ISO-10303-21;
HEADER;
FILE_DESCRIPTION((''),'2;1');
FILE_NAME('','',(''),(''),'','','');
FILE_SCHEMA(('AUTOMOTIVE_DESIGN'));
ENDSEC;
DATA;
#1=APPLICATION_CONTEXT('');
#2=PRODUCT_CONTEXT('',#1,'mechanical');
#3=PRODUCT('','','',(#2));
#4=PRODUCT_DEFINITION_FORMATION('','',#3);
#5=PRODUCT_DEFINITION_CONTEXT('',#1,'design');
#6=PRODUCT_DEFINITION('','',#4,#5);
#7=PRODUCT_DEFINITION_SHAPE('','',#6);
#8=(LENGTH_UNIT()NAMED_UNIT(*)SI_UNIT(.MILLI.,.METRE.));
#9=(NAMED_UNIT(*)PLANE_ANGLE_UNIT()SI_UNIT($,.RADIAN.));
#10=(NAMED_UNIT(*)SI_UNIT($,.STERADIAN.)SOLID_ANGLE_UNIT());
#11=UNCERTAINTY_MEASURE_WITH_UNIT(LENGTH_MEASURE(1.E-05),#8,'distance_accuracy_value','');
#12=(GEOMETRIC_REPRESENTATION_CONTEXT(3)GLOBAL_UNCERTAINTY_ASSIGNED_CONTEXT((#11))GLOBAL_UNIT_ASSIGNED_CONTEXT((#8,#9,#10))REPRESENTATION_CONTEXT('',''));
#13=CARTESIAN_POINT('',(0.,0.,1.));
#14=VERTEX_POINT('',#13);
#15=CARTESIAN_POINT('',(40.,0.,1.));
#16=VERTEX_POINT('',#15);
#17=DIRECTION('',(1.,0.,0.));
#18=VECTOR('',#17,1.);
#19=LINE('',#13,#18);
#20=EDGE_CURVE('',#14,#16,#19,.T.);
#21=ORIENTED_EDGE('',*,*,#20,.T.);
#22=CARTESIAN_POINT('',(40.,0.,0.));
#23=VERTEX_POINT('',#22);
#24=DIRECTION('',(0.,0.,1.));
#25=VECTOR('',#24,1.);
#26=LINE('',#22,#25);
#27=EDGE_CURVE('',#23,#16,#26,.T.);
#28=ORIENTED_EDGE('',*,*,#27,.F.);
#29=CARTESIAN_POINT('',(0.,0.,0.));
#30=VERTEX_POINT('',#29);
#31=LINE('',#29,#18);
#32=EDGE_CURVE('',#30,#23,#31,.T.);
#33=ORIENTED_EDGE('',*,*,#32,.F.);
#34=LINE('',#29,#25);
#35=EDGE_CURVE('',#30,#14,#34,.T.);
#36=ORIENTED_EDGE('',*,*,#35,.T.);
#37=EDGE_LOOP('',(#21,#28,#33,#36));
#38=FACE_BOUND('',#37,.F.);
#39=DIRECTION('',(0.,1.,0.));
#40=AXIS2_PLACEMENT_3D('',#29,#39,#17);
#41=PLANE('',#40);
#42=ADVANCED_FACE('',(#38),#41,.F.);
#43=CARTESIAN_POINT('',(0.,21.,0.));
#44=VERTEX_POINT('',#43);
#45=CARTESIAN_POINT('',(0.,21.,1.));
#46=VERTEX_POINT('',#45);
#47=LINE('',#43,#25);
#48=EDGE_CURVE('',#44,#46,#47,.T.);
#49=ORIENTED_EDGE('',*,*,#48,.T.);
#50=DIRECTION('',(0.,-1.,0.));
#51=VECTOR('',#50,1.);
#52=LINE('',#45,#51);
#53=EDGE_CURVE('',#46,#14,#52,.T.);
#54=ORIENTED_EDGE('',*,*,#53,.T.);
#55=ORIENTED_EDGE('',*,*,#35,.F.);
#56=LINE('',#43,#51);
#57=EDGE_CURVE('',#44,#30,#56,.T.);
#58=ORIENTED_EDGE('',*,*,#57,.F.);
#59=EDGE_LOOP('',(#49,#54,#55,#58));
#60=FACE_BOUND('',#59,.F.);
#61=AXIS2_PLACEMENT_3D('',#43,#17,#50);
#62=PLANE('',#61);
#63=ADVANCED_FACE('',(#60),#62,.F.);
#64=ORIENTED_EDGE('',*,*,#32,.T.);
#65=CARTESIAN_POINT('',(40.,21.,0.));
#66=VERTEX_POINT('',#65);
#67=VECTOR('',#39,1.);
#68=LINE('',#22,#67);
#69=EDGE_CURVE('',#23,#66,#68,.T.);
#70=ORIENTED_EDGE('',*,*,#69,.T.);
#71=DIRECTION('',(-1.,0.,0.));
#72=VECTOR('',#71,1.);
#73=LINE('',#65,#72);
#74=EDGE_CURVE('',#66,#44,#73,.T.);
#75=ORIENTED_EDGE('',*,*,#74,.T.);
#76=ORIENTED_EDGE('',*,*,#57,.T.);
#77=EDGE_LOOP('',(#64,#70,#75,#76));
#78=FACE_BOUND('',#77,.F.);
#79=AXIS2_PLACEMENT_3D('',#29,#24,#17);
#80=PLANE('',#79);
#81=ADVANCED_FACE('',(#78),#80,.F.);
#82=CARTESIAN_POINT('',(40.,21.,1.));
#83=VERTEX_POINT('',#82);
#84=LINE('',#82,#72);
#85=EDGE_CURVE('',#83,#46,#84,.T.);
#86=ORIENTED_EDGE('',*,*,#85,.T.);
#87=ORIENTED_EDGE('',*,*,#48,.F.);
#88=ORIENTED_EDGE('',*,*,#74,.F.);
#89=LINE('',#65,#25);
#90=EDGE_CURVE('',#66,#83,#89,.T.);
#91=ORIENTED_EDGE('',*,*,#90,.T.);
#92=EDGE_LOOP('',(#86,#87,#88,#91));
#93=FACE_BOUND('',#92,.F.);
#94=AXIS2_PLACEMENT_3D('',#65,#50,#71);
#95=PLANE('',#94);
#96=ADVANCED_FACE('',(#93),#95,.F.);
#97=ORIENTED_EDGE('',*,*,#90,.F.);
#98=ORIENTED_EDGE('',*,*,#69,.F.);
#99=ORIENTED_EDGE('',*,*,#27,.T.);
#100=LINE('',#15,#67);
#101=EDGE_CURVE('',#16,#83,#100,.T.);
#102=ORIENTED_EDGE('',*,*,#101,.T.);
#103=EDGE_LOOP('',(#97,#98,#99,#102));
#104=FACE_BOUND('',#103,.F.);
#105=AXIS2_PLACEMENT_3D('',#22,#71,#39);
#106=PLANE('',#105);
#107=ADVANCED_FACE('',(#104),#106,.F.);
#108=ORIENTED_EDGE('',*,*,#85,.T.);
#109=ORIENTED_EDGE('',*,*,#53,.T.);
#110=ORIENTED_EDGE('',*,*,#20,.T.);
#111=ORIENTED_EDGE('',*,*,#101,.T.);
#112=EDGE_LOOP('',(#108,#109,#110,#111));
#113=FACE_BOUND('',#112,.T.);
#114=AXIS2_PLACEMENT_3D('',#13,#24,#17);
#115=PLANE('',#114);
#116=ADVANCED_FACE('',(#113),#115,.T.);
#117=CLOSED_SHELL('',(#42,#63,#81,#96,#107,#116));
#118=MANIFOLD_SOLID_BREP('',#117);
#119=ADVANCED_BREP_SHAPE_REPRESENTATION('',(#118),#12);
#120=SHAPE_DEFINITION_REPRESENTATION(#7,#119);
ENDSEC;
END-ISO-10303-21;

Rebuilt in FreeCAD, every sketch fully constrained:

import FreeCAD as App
import Part
import Sketcher
Q = App.Units.Quantity

doc = App.newDocument("Part")
body = doc.addObject("PartDesign::Body", "Body")

# Sketch on XY plane
sketch1 = body.newObject("Sketcher::SketchObject", "Sketch")
sketch1.AttachmentSupport = (doc.getObject("XY_Plane"), [""])
sketch1.MapMode = "FlatFace"
sketch1.addGeometry(Part.LineSegment(App.Vector(0, 21, 0), App.Vector(0, 0, 0)), False)
sketch1.addGeometry(Part.LineSegment(App.Vector(0, 0, 0), App.Vector(40, 0, 0)), False)
sketch1.addGeometry(Part.LineSegment(App.Vector(40, 0, 0), App.Vector(40, 21, 0)), False)
sketch1.addGeometry(Part.LineSegment(App.Vector(40, 21, 0), App.Vector(0, 21, 0)), False)
sketch1.addConstraint(Sketcher.Constraint("Coincident", 0, 2, 1, 1))
sketch1.addConstraint(Sketcher.Constraint("Coincident", 1, 2, 2, 1))
sketch1.addConstraint(Sketcher.Constraint("Coincident", 2, 2, 3, 1))
sketch1.addConstraint(Sketcher.Constraint("Coincident", 3, 2, 0, 1))
sketch1.addConstraint(Sketcher.Constraint("Vertical", 0))
sketch1.addConstraint(Sketcher.Constraint("Horizontal", 1))
sketch1.addConstraint(Sketcher.Constraint("Vertical", 2))
sketch1.addConstraint(Sketcher.Constraint("Horizontal", 3))
sketch1.addConstraint(Sketcher.Constraint("Coincident", 0, 2, -1, 1))
sketch1.addConstraint(Sketcher.Constraint("DistanceX", 1, 1, 1, 2, Q("40 mm")))
sketch1.addConstraint(Sketcher.Constraint("DistanceY", 0, 2, 0, 1, Q("21 mm")))
pad1 = body.newObject("PartDesign::Pad", "Pad")
pad1.Profile = sketch1
pad1.Length = 1

doc.recompute()
